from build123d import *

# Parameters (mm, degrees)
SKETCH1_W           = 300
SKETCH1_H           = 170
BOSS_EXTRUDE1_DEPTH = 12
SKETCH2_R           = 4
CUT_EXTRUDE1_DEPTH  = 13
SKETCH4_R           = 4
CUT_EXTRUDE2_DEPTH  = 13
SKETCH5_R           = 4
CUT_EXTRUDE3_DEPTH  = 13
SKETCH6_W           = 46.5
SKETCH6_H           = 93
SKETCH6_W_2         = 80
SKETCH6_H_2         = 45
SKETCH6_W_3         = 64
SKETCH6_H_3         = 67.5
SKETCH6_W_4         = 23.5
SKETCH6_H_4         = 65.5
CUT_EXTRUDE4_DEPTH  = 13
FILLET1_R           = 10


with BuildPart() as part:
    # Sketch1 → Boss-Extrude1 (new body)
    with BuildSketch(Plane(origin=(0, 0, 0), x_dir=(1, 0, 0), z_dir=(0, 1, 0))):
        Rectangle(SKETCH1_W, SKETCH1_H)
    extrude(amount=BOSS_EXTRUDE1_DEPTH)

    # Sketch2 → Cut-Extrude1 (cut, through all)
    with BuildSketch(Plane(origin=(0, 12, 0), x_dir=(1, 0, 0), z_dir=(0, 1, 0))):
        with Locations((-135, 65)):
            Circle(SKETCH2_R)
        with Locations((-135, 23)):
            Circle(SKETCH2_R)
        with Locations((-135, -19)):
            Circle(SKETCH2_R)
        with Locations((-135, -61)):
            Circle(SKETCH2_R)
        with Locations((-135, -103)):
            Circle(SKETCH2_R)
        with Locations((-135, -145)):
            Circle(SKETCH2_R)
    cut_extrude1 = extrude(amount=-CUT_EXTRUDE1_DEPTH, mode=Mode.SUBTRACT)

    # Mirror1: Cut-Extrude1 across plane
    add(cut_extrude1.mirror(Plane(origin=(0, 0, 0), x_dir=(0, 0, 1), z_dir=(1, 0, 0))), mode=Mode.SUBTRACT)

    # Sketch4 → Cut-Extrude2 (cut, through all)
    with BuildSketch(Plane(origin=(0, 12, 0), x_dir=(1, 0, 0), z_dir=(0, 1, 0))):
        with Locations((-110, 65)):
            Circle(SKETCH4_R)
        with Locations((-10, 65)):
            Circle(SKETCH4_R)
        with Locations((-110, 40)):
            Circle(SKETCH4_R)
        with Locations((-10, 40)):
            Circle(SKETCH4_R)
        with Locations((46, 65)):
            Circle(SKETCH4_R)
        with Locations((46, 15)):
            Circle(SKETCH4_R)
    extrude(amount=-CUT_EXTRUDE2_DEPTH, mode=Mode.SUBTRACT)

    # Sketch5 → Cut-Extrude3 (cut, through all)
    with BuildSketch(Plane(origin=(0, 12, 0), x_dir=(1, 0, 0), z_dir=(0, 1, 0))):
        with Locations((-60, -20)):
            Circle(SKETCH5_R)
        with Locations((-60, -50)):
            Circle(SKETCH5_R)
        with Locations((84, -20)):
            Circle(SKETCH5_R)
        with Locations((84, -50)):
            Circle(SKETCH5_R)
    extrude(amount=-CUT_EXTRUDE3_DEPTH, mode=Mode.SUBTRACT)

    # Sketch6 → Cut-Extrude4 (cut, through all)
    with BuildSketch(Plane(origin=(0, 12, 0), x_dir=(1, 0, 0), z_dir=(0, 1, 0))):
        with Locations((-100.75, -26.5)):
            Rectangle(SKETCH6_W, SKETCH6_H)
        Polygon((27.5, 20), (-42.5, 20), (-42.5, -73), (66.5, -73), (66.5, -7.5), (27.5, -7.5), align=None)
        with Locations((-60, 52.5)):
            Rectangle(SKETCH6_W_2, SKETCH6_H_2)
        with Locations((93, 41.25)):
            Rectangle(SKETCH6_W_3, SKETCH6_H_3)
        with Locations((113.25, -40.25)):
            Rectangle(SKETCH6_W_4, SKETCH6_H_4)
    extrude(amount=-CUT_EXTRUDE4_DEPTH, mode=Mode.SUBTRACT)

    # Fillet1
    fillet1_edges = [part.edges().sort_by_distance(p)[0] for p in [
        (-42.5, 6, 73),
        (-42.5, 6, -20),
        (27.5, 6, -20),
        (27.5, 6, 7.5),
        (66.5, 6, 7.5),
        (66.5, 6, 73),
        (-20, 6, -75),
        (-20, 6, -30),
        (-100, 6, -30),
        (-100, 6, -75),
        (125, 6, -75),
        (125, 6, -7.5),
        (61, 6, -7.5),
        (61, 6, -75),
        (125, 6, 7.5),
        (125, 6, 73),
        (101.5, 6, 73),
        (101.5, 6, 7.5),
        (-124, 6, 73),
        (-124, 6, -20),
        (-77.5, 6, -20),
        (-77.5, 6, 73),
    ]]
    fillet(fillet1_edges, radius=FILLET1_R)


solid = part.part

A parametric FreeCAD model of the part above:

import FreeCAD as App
import Part
import Sketcher
Q = App.Units.Quantity


def edges_at(feature, points):
    """Names of the edges that pass closest to the given points."""
    edges = feature.Shape.Edges
    near = lambda p: min(range(len(edges)), key=lambda i: edges[i].distToShape(Part.Vertex(*p))[0])
    return sorted({f"Edge{near(p) + 1}" for p in points})

doc = App.newDocument("Part")
params = doc.addObject("Spreadsheet::Sheet", "Params")
for row, (alias, value) in enumerate([
    ("sketch1_width", "300 mm"),
    ("sketch1_height", "170 mm"),
    ("pad1_length", "12 mm"),
    ("sketch2_diameter", "8 mm"),
    ("sketch3_diameter", "8 mm"),
    ("sketch4_diameter", "8 mm"),
    ("sketch5_width", "70 mm"),
    ("sketch5_width2", "109 mm"),
    ("sketch5_width3", "80 mm"),
    ("sketch5_width4", "64 mm"),
    ("sketch5_height", "93 mm"),
    ("fillet_radius", "10 mm"),
], start=1):
    params.set(f"A{row}", alias)
    params.set(f"B{row}", "=" + value)
    params.setAlias(f"B{row}", alias)

body = doc.addObject("PartDesign::Body", "Body")

# Sketch on XZ plane
sketch1 = body.newObject("Sketcher::SketchObject", "Sketch")
sketch1.AttachmentSupport = (doc.getObject("XZ_Plane"), [""])
sketch1.MapMode = "FlatFace"
sketch1.addGeometry([
    Part.LineSegment(App.Vector(-150, -85, 0), App.Vector(-150, 85, 0)),
    Part.LineSegment(App.Vector(-150, 85, 0), App.Vector(150, 85, 0)),
    Part.LineSegment(App.Vector(150, 85, 0), App.Vector(150, -85, 0)),
    Part.LineSegment(App.Vector(150, -85, 0), App.Vector(-150, -85, 0)),
], False)
sketch1.addConstraint([
    Sketcher.Constraint("Coincident", 0, 2, 1, 1),
    Sketcher.Constraint("Coincident", 1, 2, 2, 1),
    Sketcher.Constraint("Coincident", 2, 2, 3, 1),
    Sketcher.Constraint("Coincident", 3, 2, 0, 1),
    Sketcher.Constraint("Vertical", 0),
    Sketcher.Constraint("Horizontal", 1),
    Sketcher.Constraint("Vertical", 2),
    Sketcher.Constraint("Horizontal", 3),
    Sketcher.Constraint("Symmetric", 0, 2, 2, 2, -1, 1),
    Sketcher.Constraint("DistanceX", 1, 1, 1, 2, Q("300 mm")),
    Sketcher.Constraint("DistanceY", 0, 1, 0, 2, Q("170 mm")),
])
sketch1.setExpression("Constraints[9]", "Params.sketch1_width")
sketch1.setExpression("Constraints[10]", "Params.sketch1_height")
pad1 = body.newObject("PartDesign::Pad", "Pad")
pad1.Profile = sketch1
pad1.setExpression("Length", "Params.pad1_length")
pad1.Reversed = True

# Sketch on XZ plane
sketch2 = body.newObject("Sketcher::SketchObject", "Sketch001")
sketch2.AttachmentSupport = (doc.getObject("XZ_Plane"), [""])
sketch2.MapMode = "FlatFace"
sketch2.AttachmentOffset = App.Placement(App.Vector(0, 0, -12), App.Rotation())
sketch2.addGeometry([
    Part.Circle(App.Vector(-135, -65, 0), App.Vector(0, 0, 1), 4),  # 0
    Part.Circle(App.Vector(-135, -23, 0), App.Vector(0, 0, 1), 4),  # 1
    Part.Circle(App.Vector(-135, 19, 0), App.Vector(0, 0, 1), 4),  # 2
    Part.Circle(App.Vector(-135, 61, 0), App.Vector(0, 0, 1), 4),  # 3
    Part.Circle(App.Vector(-135, 103, 0), App.Vector(0, 0, 1), 4),  # 4
    Part.Circle(App.Vector(-135, 145, 0), App.Vector(0, 0, 1), 4),  # 5
], False)
sketch2.addConstraint([
    Sketcher.Constraint("Equal", 0, 1),
    Sketcher.Constraint("Equal", 1, 2),
    Sketcher.Constraint("Equal", 2, 3),
    Sketcher.Constraint("Equal", 3, 4),
    Sketcher.Constraint("Equal", 4, 5),
    Sketcher.Constraint("Vertical", 0, 3, 1, 3),
    Sketcher.Constraint("Vertical", 1, 3, 2, 3),
    Sketcher.Constraint("Vertical", 2, 3, 3, 3),
    Sketcher.Constraint("Vertical", 3, 3, 4, 3),
    Sketcher.Constraint("Vertical", 4, 3, 5, 3),
    Sketcher.Constraint("Diameter", 0, Q("8 mm")),
    Sketcher.Constraint("DistanceX", 0, 3, -1, 1, Q("135 mm")),
    Sketcher.Constraint("DistanceY", 0, 3, -1, 1, Q("65 mm")),
    Sketcher.Constraint("DistanceY", 1, 3, -1, 1, Q("23 mm")),
    Sketcher.Constraint("DistanceY", -1, 1, 2, 3, Q("19 mm")),
    Sketcher.Constraint("DistanceY", -1, 1, 3, 3, Q("61 mm")),
    Sketcher.Constraint("DistanceY", -1, 1, 4, 3, Q("103 mm")),
    Sketcher.Constraint("DistanceY", -1, 1, 5, 3, Q("145 mm")),
])
sketch2.setExpression("Constraints[10]", "Params.sketch2_diameter")
pocket1 = body.newObject("PartDesign::Pocket", "Pocket")
pocket1.Profile = sketch2
pocket1.Type = "ThroughAll"
pocket1.Reversed = True
doc.recompute()

mirrored = body.newObject("PartDesign::Mirrored", "Mirrored")
mirrored.Originals = [pocket1]
mirrored.MirrorPlane = (doc.getObject("YZ_Plane"), [""])
body.Tip = mirrored

# Sketch on XZ plane
sketch3 = body.newObject("Sketcher::SketchObject", "Sketch002")
sketch3.AttachmentSupport = (doc.getObject("XZ_Plane"), [""])
sketch3.MapMode = "FlatFace"
sketch3.AttachmentOffset = App.Placement(App.Vector(0, 0, -12), App.Rotation())
sketch3.addGeometry([
    Part.Circle(App.Vector(-110, -65, 0), App.Vector(0, 0, 1), 4),  # 0
    Part.Circle(App.Vector(-10, -65, 0), App.Vector(0, 0, 1), 4),  # 1
    Part.Circle(App.Vector(-110, -40, 0), App.Vector(0, 0, 1), 4),  # 2
    Part.Circle(App.Vector(-10, -40, 0), App.Vector(0, 0, 1), 4),  # 3
    Part.Circle(App.Vector(46, -65, 0), App.Vector(0, 0, 1), 4),  # 4
    Part.Circle(App.Vector(46, -15, 0), App.Vector(0, 0, 1), 4),  # 5
], False)
sketch3.addConstraint([
    Sketcher.Constraint("Equal", 0, 1),
    Sketcher.Constraint("Equal", 1, 2),
    Sketcher.Constraint("Equal", 2, 3),
    Sketcher.Constraint("Equal", 3, 4),
    Sketcher.Constraint("Equal", 4, 5),
    Sketcher.Constraint("Horizontal", 0, 3, 1, 3),
    Sketcher.Constraint("Horizontal", 2, 3, 3, 3),
    Sketcher.Constraint("Horizontal", 1, 3, 4, 3),
    Sketcher.Constraint("Vertical", 0, 3, 2, 3),
    Sketcher.Constraint("Vertical", 1, 3, 3, 3),
    Sketcher.Constraint("Vertical", 4, 3, 5, 3),
    Sketcher.Constraint("Diameter", 0, Q("8 mm")),
    Sketcher.Constraint("DistanceX", 0, 3, -1, 1, Q("110 mm")),
    Sketcher.Constraint("DistanceY", 0, 3, -1, 1, Q("65 mm")),
    Sketcher.Constraint("DistanceX", 1, 3, -1, 1, Q("10 mm")),
    Sketcher.Constraint("DistanceY", 2, 3, -1, 1, Q("40 mm")),
    Sketcher.Constraint("DistanceX", -1, 1, 4, 3, Q("46 mm")),
    Sketcher.Constraint("DistanceY", 5, 3, -1, 1, Q("15 mm")),
])
sketch3.setExpression("Constraints[11]", "Params.sketch3_diameter")
pocket2 = body.newObject("PartDesign::Pocket", "Pocket001")
pocket2.Profile = sketch3
pocket2.Type = "ThroughAll"
pocket2.Reversed = True

# Sketch on XZ plane
sketch4 = body.newObject("Sketcher::SketchObject", "Sketch003")
sketch4.AttachmentSupport = (doc.getObject("XZ_Plane"), [""])
sketch4.MapMode = "FlatFace"
sketch4.AttachmentOffset = App.Placement(App.Vector(0, 0, -12), App.Rotation())
sketch4.addGeometry([
    Part.Circle(App.Vector(-60, 20, 0), App.Vector(0, 0, 1), 4),
    Part.Circle(App.Vector(-60, 50, 0), App.Vector(0, 0, 1), 4),
    Part.Circle(App.Vector(84, 20, 0), App.Vector(0, 0, 1), 4),
    Part.Circle(App.Vector(84, 50, 0), App.Vector(0, 0, 1), 4),
], False)
sketch4.addConstraint([
    Sketcher.Constraint("Equal", 0, 1),
    Sketcher.Constraint("Equal", 1, 2),
    Sketcher.Constraint("Equal", 2, 3),
    Sketcher.Constraint("Horizontal", 0, 3, 2, 3),
    Sketcher.Constraint("Horizontal", 1, 3, 3, 3),
    Sketcher.Constraint("Vertical", 0, 3, 1, 3),
    Sketcher.Constraint("Vertical", 2, 3, 3, 3),
    Sketcher.Constraint("Diameter", 0, Q("8 mm")),
    Sketcher.Constraint("DistanceX", 0, 3, -1, 1, Q("60 mm")),
    Sketcher.Constraint("DistanceY", -1, 1, 0, 3, Q("20 mm")),
    Sketcher.Constraint("DistanceY", -1, 1, 1, 3, Q("50 mm")),
    Sketcher.Constraint("DistanceX", -1, 1, 2, 3, Q("84 mm")),
])
sketch4.setExpression("Constraints[7]", "Params.sketch4_diameter")
pocket3 = body.newObject("PartDesign::Pocket", "Pocket002")
pocket3.Profile = sketch4
pocket3.Type = "ThroughAll"
pocket3.Reversed = True

# Sketch on XZ plane
sketch5 = body.newObject("Sketcher::SketchObject", "Sketch004")
sketch5.AttachmentSupport = (doc.getObject("XZ_Plane"), [""])
sketch5.MapMode = "FlatFace"
sketch5.AttachmentOffset = App.Placement(App.Vector(0, 0, -12), App.Rotation())
sketch5.addGeometry([
    Part.LineSegment(App.Vector(-124, -20, 0), App.Vector(-124, 73, 0)),  # 0
    Part.LineSegment(App.Vector(-124, 73, 0), App.Vector(-77.5, 73, 0)),  # 1
    Part.LineSegment(App.Vector(-77.5, 73, 0), App.Vector(-77.5, -20, 0)),  # 2
    Part.LineSegment(App.Vector(-77.5, -20, 0), App.Vector(-124, -20, 0)),  # 3
    Part.LineSegment(App.Vector(27.5, -20, 0), App.Vector(-42.5, -20, 0)),  # 4
    Part.LineSegment(App.Vector(-42.5, -20, 0), App.Vector(-42.5, 73, 0)),  # 5
    Part.LineSegment(App.Vector(-42.5, 73, 0), App.Vector(66.5, 73, 0)),  # 6
    Part.LineSegment(App.Vector(66.5, 73, 0), App.Vector(66.5, 7.5, 0)),  # 7
    Part.LineSegment(App.Vector(66.5, 7.5, 0), App.Vector(27.5, 7.5, 0)),  # 8
    Part.LineSegment(App.Vector(27.5, 7.5, 0), App.Vector(27.5, -20, 0)),  # 9
    Part.LineSegment(App.Vector(-100, -75, 0), App.Vector(-100, -30, 0)),  # 10
    Part.LineSegment(App.Vector(-100, -30, 0), App.Vector(-20, -30, 0)),  # 11
    Part.LineSegment(App.Vector(-20, -30, 0), App.Vector(-20, -75, 0)),  # 12
    Part.LineSegment(App.Vector(-20, -75, 0), App.Vector(-100, -75, 0)),  # 13
    Part.LineSegment(App.Vector(61, -75, 0), App.Vector(61, -7.5, 0)),  # 14
    Part.LineSegment(App.Vector(61, -7.5, 0), App.Vector(125, -7.5, 0)),  # 15
    Part.LineSegment(App.Vector(125, -7.5, 0), App.Vector(125, -75, 0)),  # 16
    Part.LineSegment(App.Vector(125, -75, 0), App.Vector(61, -75, 0)),  # 17
    Part.LineSegment(App.Vector(101.5, 7.5, 0), App.Vector(101.5, 73, 0)),  # 18
    Part.LineSegment(App.Vector(101.5, 73, 0), App.Vector(125, 73, 0)),  # 19
    Part.LineSegment(App.Vector(125, 73, 0), App.Vector(125, 7.5, 0)),  # 20
    Part.LineSegment(App.Vector(125, 7.5, 0), App.Vector(101.5, 7.5, 0)),  # 21
], False)
sketch5.addConstraint([
    Sketcher.Constraint("Coincident", 0, 2, 1, 1),
    Sketcher.Constraint("Coincident", 1, 2, 2, 1),
    Sketcher.Constraint("Coincident", 2, 2, 3, 1),
    Sketcher.Constraint("Coincident", 3, 2, 0, 1),
    Sketcher.Constraint("Coincident", 4, 2, 5, 1),
    Sketcher.Constraint("Coincident", 5, 2, 6, 1),
    Sketcher.Constraint("Coincident", 6, 2, 7, 1),
    Sketcher.Constraint("Coincident", 7, 2, 8, 1),
    Sketcher.Constraint("Coincident", 8, 2, 9, 1),
    Sketcher.Constraint("Coincident", 9, 2, 4, 1),
    Sketcher.Constraint("Coincident", 10, 2, 11, 1),
    Sketcher.Constraint("Coincident", 11, 2, 12, 1),
    Sketcher.Constraint("Coincident", 12, 2, 13, 1),
    Sketcher.Constraint("Coincident", 13, 2, 10, 1),
    Sketcher.Constraint("Coincident", 14, 2, 15, 1),
    Sketcher.Constraint("Coincident", 15, 2, 16, 1),
    Sketcher.Constraint("Coincident", 16, 2, 17, 1),
    Sketcher.Constraint("Coincident", 17, 2, 14, 1),
    Sketcher.Constraint("Coincident", 18, 2, 19, 1),
    Sketcher.Constraint("Coincident", 19, 2, 20, 1),
    Sketcher.Constraint("Coincident", 20, 2, 21, 1),
    Sketcher.Constraint("Coincident", 21, 2, 18, 1),
    Sketcher.Constraint("Vertical", 0),
    Sketcher.Constraint("Horizontal", 1),
    Sketcher.Constraint("Vertical", 2),
    Sketcher.Constraint("Horizontal", 3),
    Sketcher.Constraint("Horizontal", 4),
    Sketcher.Constraint("Vertical", 5),
    Sketcher.Constraint("Horizontal", 6),
    Sketcher.Constraint("Vertical", 7),
    Sketcher.Constraint("Horizontal", 8),
    Sketcher.Constraint("Vertical", 9),
    Sketcher.Constraint("Vertical", 10),
    Sketcher.Constraint("Horizontal", 11),
    Sketcher.Constraint("Vertical", 12),
    Sketcher.Constraint("Horizontal", 13),
    Sketcher.Constraint("Vertical", 14),
    Sketcher.Constraint("Horizontal", 15),
    Sketcher.Constraint("Vertical", 16),
    Sketcher.Constraint("Horizontal", 17),
    Sketcher.Constraint("Vertical", 18),
    Sketcher.Constraint("Horizontal", 19),
    Sketcher.Constraint("Vertical", 20),
    Sketcher.Constraint("Horizontal", 21),
    Sketcher.Constraint("Symmetric", 15, 2, 20, 2, -1),
    Sketcher.Constraint("Horizontal", 3, 2, 4, 2),
    Sketcher.Constraint("Horizontal", 1, 2, 5, 2),
    Sketcher.Constraint("Horizontal", 13, 2, 16, 2),
    Sketcher.Constraint("Horizontal", 6, 2, 18, 2),
    Sketcher.Constraint("Horizontal", 8, 2, 20, 2),
    Sketcher.Constraint("DistanceX", 4, 2, 4, 1, Q("70 mm")),
    Sketcher.Constraint("DistanceX", 6, 1, 6, 2, Q("109 mm")),
    Sketcher.Constraint("DistanceX", 11, 1, 11, 2, Q("80 mm")),
    Sketcher.Constraint("DistanceX", 15, 1, 15, 2, Q("64 mm")),
    Sketcher.Constraint("DistanceY", 0, 1, 0, 2, Q("93 mm")),
    Sketcher.Constraint("DistanceY", 10, 1, 10, 2, Q("45 mm")),
    Sketcher.Constraint("DistanceX", 1, 1, 1, 2, Q("46.5 mm")),
    Sketcher.Constraint("DistanceX", 19, 1, 19, 2, Q("23.5 mm")),
    Sketcher.Constraint("DistanceY", 7, 2, 7, 1, Q("65.5 mm")),
    Sketcher.Constraint("DistanceY", 14, 1, 14, 2, Q("67.5 mm")),
    Sketcher.Constraint("DistanceX", 0, 2, -1, 1, Q("124 mm")),
    Sketcher.Constraint("DistanceY", -1, 1, 0, 2, Q("73 mm")),
    Sketcher.Constraint("DistanceX", 10, 2, -1, 1, Q("100 mm")),
    Sketcher.Constraint("DistanceX", -1, 1, 14, 2, Q("61 mm")),
    Sketcher.Constraint("DistanceX", 2, 2, 4, 2, Q("35 mm")),
])
sketch5.setExpression("Constraints[50]", "Params.sketch5_width")
sketch5.setExpression("Constraints[51]", "Params.sketch5_width2")
sketch5.setExpression("Constraints[52]", "Params.sketch5_width3")
sketch5.setExpression("Constraints[53]", "Params.sketch5_width4")
sketch5.setExpression("Constraints[54]", "Params.sketch5_height")
pocket4 = body.newObject("PartDesign::Pocket", "Pocket003")
pocket4.Profile = sketch5
pocket4.Type = "ThroughAll"
pocket4.Reversed = True
doc.recompute()

fillet = body.newObject("PartDesign::Fillet", "Fillet")
fillet.Base = (pocket4, edges_at(pocket4, [
    (-42.5, 6, 73),
    (-42.5, 6, -20),
    (27.5, 6, -20),
    (27.5, 6, 7.5),
    (66.5, 6, 7.5),
    (66.5, 6, 73),
    (-20, 6, -75),
    (-20, 6, -30),
    (-100, 6, -30),
    (-100, 6, -75),
    (125, 6, -75),
    (125, 6, -7.5),
    (61, 6, -7.5),
    (61, 6, -75),
    (125, 6, 7.5),
    (125, 6, 73),
    (101.5, 6, 73),
    (101.5, 6, 7.5),
    (-124, 6, 73),
    (-124, 6, -20),
    (-77.5, 6, -20),
    (-77.5, 6, 73),
]))
fillet.setExpression("Radius", "Params.fillet_radius")

doc.recompute()
